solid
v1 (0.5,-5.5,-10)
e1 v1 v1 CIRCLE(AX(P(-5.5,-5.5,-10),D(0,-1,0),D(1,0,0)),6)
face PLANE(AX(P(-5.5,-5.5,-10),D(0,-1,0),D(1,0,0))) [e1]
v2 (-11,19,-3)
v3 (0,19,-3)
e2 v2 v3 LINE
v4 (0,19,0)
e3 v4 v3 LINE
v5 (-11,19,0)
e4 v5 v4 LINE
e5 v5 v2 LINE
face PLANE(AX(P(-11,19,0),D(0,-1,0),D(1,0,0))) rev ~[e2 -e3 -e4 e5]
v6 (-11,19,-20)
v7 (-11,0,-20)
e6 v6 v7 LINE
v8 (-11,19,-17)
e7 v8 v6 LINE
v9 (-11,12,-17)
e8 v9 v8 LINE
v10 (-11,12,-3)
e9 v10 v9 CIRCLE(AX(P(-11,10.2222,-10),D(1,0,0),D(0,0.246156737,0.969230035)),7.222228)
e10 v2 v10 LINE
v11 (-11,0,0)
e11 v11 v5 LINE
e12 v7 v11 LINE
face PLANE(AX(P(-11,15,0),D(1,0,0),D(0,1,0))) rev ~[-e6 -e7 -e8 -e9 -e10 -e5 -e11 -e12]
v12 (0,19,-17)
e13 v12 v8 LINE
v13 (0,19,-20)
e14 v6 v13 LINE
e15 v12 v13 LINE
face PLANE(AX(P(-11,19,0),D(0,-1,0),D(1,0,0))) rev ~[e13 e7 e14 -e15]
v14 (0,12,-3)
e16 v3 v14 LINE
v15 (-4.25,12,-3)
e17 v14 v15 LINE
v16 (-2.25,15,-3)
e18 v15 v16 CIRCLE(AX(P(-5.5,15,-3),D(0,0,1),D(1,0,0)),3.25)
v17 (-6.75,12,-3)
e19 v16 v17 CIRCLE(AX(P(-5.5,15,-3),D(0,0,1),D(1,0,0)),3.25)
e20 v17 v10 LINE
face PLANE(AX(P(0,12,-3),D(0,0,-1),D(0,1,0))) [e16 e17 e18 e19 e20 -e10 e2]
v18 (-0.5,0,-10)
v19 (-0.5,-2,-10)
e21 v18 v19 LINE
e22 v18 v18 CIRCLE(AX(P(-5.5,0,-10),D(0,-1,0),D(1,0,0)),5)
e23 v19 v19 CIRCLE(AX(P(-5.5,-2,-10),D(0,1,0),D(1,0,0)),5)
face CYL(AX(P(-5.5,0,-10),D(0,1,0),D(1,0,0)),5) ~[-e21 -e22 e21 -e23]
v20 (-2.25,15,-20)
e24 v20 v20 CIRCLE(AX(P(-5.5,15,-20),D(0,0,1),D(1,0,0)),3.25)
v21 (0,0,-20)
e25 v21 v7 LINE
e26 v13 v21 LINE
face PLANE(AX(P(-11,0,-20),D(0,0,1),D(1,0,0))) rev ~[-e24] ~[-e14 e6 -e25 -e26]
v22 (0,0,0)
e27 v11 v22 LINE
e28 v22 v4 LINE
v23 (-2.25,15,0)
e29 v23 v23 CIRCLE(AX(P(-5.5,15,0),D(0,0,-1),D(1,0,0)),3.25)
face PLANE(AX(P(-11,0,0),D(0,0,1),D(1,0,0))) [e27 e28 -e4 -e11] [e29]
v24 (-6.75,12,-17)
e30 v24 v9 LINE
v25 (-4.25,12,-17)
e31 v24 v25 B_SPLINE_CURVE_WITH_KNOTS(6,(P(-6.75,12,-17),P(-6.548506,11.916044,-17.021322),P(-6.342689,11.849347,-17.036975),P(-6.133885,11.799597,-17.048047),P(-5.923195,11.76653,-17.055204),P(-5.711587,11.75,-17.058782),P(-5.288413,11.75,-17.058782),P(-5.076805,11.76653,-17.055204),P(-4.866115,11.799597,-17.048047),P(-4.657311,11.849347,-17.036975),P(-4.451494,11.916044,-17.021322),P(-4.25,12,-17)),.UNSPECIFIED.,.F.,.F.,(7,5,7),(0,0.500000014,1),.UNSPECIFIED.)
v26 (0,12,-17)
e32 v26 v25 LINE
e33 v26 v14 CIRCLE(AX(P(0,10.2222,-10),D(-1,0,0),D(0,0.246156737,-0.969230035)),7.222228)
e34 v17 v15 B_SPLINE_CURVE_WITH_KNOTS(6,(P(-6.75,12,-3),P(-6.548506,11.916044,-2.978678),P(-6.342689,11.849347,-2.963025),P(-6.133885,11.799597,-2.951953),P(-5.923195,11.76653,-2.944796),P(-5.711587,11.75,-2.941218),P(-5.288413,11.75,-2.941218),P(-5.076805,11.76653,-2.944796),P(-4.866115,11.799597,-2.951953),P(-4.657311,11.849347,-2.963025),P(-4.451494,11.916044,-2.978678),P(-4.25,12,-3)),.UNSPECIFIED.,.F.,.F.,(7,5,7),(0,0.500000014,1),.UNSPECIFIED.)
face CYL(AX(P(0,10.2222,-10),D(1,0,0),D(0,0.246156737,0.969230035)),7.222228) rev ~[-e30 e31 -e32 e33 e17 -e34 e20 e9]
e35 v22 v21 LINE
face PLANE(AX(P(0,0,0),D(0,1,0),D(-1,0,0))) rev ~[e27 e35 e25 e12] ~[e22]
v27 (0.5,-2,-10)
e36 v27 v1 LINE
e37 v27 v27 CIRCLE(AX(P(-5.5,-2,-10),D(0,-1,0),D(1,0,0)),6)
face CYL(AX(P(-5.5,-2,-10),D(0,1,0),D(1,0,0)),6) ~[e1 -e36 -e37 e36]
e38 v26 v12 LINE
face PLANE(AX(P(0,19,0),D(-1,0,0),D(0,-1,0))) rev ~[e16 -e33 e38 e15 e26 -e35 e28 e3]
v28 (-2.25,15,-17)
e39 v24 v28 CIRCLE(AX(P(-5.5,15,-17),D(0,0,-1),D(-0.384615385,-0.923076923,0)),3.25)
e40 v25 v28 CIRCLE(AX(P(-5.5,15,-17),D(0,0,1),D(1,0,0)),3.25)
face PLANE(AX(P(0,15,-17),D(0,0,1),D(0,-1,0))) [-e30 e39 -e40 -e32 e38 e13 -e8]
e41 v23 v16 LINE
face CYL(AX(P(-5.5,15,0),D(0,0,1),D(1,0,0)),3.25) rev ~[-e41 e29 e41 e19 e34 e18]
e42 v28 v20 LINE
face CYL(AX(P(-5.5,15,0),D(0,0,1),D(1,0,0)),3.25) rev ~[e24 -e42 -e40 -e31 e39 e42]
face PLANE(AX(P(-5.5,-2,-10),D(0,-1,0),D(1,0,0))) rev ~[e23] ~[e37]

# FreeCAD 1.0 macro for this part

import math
import FreeCAD as App
import Part
import Sketcher

V = App.Vector
Q = App.Units.Quantity


def add_polygon(sketch, points):
    """Adds a closed chain of lines whose ends are joined by coincident constraints."""
    first, n = sketch.GeometryCount, len(points)
    for a, b in zip(points, points[1:] + points[:1]):
        sketch.addGeometry(Part.LineSegment(App.Vector(*a, 0), App.Vector(*b, 0)), False)
    for i in range(n):
        sketch.addConstraint(Sketcher.Constraint("Coincident", first + i, 2, first + (i + 1) % n, 1))

doc = App.newDocument("Part")
params = doc.addObject("Spreadsheet::Sheet", "Params")
for row, (alias, value) in enumerate([
    ("sketch1_width", "11 mm"),
    ("sketch1_height", "20 mm"),
    ("pad1_length", "15 mm"),
    ("sketch2_radius", "3.25 mm"),
    ("pocket1_length", "32.25 mm"),
    ("sketch3_width", "3 mm"),
    ("sketch3_height", "14 mm"),
    ("pocket2_length", "32.25 mm"),
    ("sketch4_diameter", "10 mm"),
    ("pad2_length", "2 mm"),
    ("sketch5_diameter", "12 mm"),
    ("pad3_length", "3.5 mm"),
    ("sketch6_height", "4 mm"),
    ("sketch6_radius", "3.25 mm"),
    ("sketch6_width", "11 mm"),
    ("pad4_length", "20 mm"),
    ("sketch7_height", "14 mm"),
    ("pocket3_length", "26 mm"),
], start=1):
    params.set(f"A{row}", alias)
    params.set(f"B{row}", "=" + value)
    params.setAlias(f"B{row}", alias)

body = doc.addObject("PartDesign::Body", "Body")

# Sketch on XZ plane
sketch1 = body.newObject("Sketcher::SketchObject", "Sketch")
sketch1.AttachmentSupport = (doc.getObject("XZ_Plane"), [""])
sketch1.MapMode = "FlatFace"
add_polygon(sketch1, [(-11, 0), (0, 0), (0, -20), (-11, -20)])  # lines 0-3
sketch1.addConstraint([
    Sketcher.Constraint("Horizontal", 0),
    Sketcher.Constraint("Vertical", 1),
    Sketcher.Constraint("Horizontal", 2),
    Sketcher.Constraint("Vertical", 3),
    Sketcher.Constraint("Coincident", 0, 2, -1, 1),
    Sketcher.Constraint("DistanceX", 0, 1, 0, 2, Q("11 mm")),
    Sketcher.Constraint("DistanceY", 1, 2, 1, 1, Q("20 mm")),
])
sketch1.setExpression("Constraints[9]", "Params.sketch1_width")
sketch1.setExpression("Constraints[10]", "Params.sketch1_height")
pad1 = body.newObject("PartDesign::Pad", "Pad")
pad1.Profile = sketch1
pad1.setExpression("Length", "Params.pad1_length")
pad1.Reversed = True

# Sketch on XY plane
sketch2 = body.newObject("Sketcher::SketchObject", "Sketch001")
sketch2.AttachmentSupport = (doc.getObject("XY_Plane"), [""])
sketch2.MapMode = "FlatFace"
sketch2.addGeometry([
    Part.LineSegment(V(-2.25, 15, 0), V(-8.75, 15, 0)),
    Part.ArcOfCircle(Part.Circle(V(-5.5, 15, 0), V(0, 0, 1), 3.25), math.radians(180), math.radians(360)),
], False)
sketch2.addConstraint([
    Sketcher.Constraint("Coincident", 0, 1, 1, 2),
    Sketcher.Constraint("Coincident", 1, 1, 0, 2),
    Sketcher.Constraint("Horizontal", 0),
    Sketcher.Constraint("Horizontal", 1, 3, 0, 1),
    Sketcher.Constraint("Radius", 1, Q("3.25 mm")),
    Sketcher.Constraint("DistanceY", -1, 1, 1, 3, Q("15 mm")),
    Sketcher.Constraint("DistanceX", 1, 3, -1, 1, Q("5.5 mm")),
])
sketch2.setExpression("Constraints[4]", "Params.sketch2_radius")
pocket1 = body.newObject("PartDesign::Pocket", "Pocket")
pocket1.Profile = sketch2
pocket1.setExpression("Length", "Params.pocket1_length")

# Sketch on YZ plane
sketch3 = body.newObject("Sketcher::SketchObject", "Sketch002")
sketch3.AttachmentSupport = (doc.getObject("YZ_Plane"), [""])
sketch3.MapMode = "FlatFace"
sketch3.addGeometry([
    Part.LineSegment(V(12, -17, 0), V(15, -17, 0)),
    Part.LineSegment(V(15, -17, 0), V(15, -3, 0)),
    Part.LineSegment(V(15, -3, 0), V(12, -3, 0)),
    Part.ArcOfCircle(Part.Circle(V(10.2222, -10, 0), V(0, 0, 1), 7.222228), math.radians(75.749796), math.radians(284.250204)),
], False)
sketch3.addConstraint([
    Sketcher.Constraint("Coincident", 0, 2, 1, 1),
    Sketcher.Constraint("Coincident", 1, 2, 2, 1),
    Sketcher.Constraint("Coincident", 2, 2, 3, 1),
    Sketcher.Constraint("Coincident", 3, 2, 0, 1),
    Sketcher.Constraint("Horizontal", 0),
    Sketcher.Constraint("Vertical", 1),
    Sketcher.Constraint("Horizontal", 2),
    Sketcher.Constraint("Vertical", 2, 2, 3, 2),
    Sketcher.Constraint("DistanceX", 0, 1, 0, 2, Q("3 mm")),
    Sketcher.Constraint("DistanceY", 1, 2, -1, 1, Q("3 mm")),
    Sketcher.Constraint("DistanceY", 1, 1, 1, 2, Q("14 mm")),
    Sketcher.Constraint("DistanceX", -1, 1, 0, 2, Q("15 mm")),
    Sketcher.Constraint("Radius", 3, Q("7.2222 mm")),
])
sketch3.setExpression("Constraints[8]", "Params.sketch3_width")
sketch3.setExpression("Constraints[10]", "Params.sketch3_height")
pocket2 = body.newObject("PartDesign::Pocket", "Pocket001")
pocket2.Profile = sketch3
pocket2.setExpression("Length", "Params.pocket2_length")

# Sketch on XZ plane
sketch4 = body.newObject("Sketcher::SketchObject", "Sketch003")
sketch4.AttachmentSupport = (doc.getObject("XZ_Plane"), [""])
sketch4.MapMode = "FlatFace"
sketch4.addGeometry(Part.Circle(V(-5.5, -10, 0), V(0, 0, 1), 5), False)
sketch4.addConstraint([
    Sketcher.Constraint("Diameter", 0, Q("10 mm")),
    Sketcher.Constraint("DistanceY", 0, 3, -1, 1, Q("10 mm")),
    Sketcher.Constraint("DistanceX", 0, 3, -1, 1, Q("5.5 mm")),
])
sketch4.setExpression("Constraints[0]", "Params.sketch4_diameter")
pad2 = body.newObject("PartDesign::Pad", "Pad001")
pad2.Profile = sketch4
pad2.setExpression("Length", "Params.pad2_length")

# Sketch on XZ plane
sketch5 = body.newObject("Sketcher::SketchObject", "Sketch004")
sketch5.AttachmentSupport = (doc.getObject("XZ_Plane"), [""])
sketch5.MapMode = "FlatFace"
sketch5.AttachmentOffset = App.Placement(V(0, 0, 2), App.Rotation())
sketch5.addGeometry(Part.Circle(V(-5.5, -10, 0), V(0, 0, 1), 6), False)
sketch5.addConstraint([
    Sketcher.Constraint("Diameter", 0, Q("12 mm")),
    Sketcher.Constraint("DistanceY", 0, 3, -1, 1, Q("10 mm")),
    Sketcher.Constraint("DistanceX", 0, 3, -1, 1, Q("5.5 mm")),
])
sketch5.setExpression("Constraints[0]", "Params.sketch5_diameter")
pad3 = body.newObject("PartDesign::Pad", "Pad002")
pad3.Profile = sketch5
pad3.setExpression("Length", "Params.pad3_length")

# Sketch on XY plane
sketch6 = body.newObject("Sketcher::SketchObject", "Sketch005")
sketch6.AttachmentSupport = (doc.getObject("XY_Plane"), [""])
sketch6.MapMode = "FlatFace"
sketch6.addGeometry([
    Part.LineSegment(V(-11, 19, 0), V(-11, 15, 0)),  # 0
    Part.LineSegment(V(-11, 15, 0), V(-8.75, 15, 0)),  # 1
    Part.ArcOfCircle(Part.Circle(V(-5.5, 15, 0), V(0, 0, 1), 3.25), math.radians(0), math.radians(180)),  # 2
    Part.LineSegment(V(-2.25, 15, 0), V(0, 15, 0)),  # 3
    Part.LineSegment(V(0, 15, 0), V(0, 19, 0)),  # 4
    Part.LineSegment(V(0, 19, 0), V(-11, 19, 0)),  # 5
], False)
sketch6.addConstraint([
    Sketcher.Constraint("Coincident", 0, 2, 1, 1),
    Sketcher.Constraint("Coincident", 1, 2, 2, 2),
    Sketcher.Constraint("Coincident", 2, 1, 3, 1),
    Sketcher.Constraint("Coincident", 3, 2, 4, 1),
    Sketcher.Constraint("Coincident", 4, 2, 5, 1),
    Sketcher.Constraint("Coincident", 5, 2, 0, 1),
    Sketcher.Constraint("Vertical", 0),
    Sketcher.Constraint("Horizontal", 1),
    Sketcher.Constraint("Horizontal", 3),
    Sketcher.Constraint("Vertical", 4),
    Sketcher.Constraint("Horizontal", 5),
    Sketcher.Constraint("PointOnObject", 3, 2, -2),
    Sketcher.Constraint("Horizontal", 2, 3, 0, 2),
    Sketcher.Constraint("Horizontal", 1, 2, 2, 1),
    Sketcher.Constraint("Equal", 1, 3),
    Sketcher.Constraint("DistanceY", 0, 2, 0, 1, Q("4 mm")),
    Sketcher.Constraint("Radius", 2, Q("3.25 mm")),
    Sketcher.Constraint("DistanceX", 5, 2, 5, 1, Q("11 mm")),
    Sketcher.Constraint("DistanceY", -1, 1, 2, 3, Q("15 mm")),
])
sketch6.setExpression("Constraints[15]", "Params.sketch6_height")
sketch6.setExpression("Constraints[16]", "Params.sketch6_radius")
sketch6.setExpression("Constraints[17]", "Params.sketch6_width")
pad4 = body.newObject("PartDesign::Pad", "Pad003")
pad4.Profile = sketch6
pad4.setExpression("Length", "Params.pad4_length")
pad4.Reversed = True

# Sketch on YZ plane
sketch7 = body.newObject("Sketcher::SketchObject", "Sketch006")
sketch7.AttachmentSupport = (doc.getObject("YZ_Plane"), [""])
sketch7.MapMode = "FlatFace"
add_polygon(sketch7, [(23.7535, -3), (15, -3), (15, -17), (23.7535, -17)])  # lines 0-3
sketch7.addConstraint([
    Sketcher.Constraint("Horizontal", 0),
    Sketcher.Constraint("Vertical", 1),
    Sketcher.Constraint("Horizontal", 2),
    Sketcher.Constraint("Vertical", 3),
    Sketcher.Constraint("DistanceY", 0, 2, -1, 1, Q("3 mm")),
    Sketcher.Constraint("DistanceY", 1, 2, 1, 1, Q("14 mm")),
    Sketcher.Constraint("DistanceX", -1, 1, 0, 2, Q("15 mm")),
    Sketcher.Constraint("DistanceX", 0, 2, 0, 1, Q("8.7535 mm")),
])
sketch7.setExpression("Constraints[9]", "Params.sketch7_height")
pocket3 = body.newObject("PartDesign::Pocket", "Pocket002")
pocket3.Profile = sketch7
pocket3.setExpression("Length", "Params.pocket3_length")

doc.recompute()
